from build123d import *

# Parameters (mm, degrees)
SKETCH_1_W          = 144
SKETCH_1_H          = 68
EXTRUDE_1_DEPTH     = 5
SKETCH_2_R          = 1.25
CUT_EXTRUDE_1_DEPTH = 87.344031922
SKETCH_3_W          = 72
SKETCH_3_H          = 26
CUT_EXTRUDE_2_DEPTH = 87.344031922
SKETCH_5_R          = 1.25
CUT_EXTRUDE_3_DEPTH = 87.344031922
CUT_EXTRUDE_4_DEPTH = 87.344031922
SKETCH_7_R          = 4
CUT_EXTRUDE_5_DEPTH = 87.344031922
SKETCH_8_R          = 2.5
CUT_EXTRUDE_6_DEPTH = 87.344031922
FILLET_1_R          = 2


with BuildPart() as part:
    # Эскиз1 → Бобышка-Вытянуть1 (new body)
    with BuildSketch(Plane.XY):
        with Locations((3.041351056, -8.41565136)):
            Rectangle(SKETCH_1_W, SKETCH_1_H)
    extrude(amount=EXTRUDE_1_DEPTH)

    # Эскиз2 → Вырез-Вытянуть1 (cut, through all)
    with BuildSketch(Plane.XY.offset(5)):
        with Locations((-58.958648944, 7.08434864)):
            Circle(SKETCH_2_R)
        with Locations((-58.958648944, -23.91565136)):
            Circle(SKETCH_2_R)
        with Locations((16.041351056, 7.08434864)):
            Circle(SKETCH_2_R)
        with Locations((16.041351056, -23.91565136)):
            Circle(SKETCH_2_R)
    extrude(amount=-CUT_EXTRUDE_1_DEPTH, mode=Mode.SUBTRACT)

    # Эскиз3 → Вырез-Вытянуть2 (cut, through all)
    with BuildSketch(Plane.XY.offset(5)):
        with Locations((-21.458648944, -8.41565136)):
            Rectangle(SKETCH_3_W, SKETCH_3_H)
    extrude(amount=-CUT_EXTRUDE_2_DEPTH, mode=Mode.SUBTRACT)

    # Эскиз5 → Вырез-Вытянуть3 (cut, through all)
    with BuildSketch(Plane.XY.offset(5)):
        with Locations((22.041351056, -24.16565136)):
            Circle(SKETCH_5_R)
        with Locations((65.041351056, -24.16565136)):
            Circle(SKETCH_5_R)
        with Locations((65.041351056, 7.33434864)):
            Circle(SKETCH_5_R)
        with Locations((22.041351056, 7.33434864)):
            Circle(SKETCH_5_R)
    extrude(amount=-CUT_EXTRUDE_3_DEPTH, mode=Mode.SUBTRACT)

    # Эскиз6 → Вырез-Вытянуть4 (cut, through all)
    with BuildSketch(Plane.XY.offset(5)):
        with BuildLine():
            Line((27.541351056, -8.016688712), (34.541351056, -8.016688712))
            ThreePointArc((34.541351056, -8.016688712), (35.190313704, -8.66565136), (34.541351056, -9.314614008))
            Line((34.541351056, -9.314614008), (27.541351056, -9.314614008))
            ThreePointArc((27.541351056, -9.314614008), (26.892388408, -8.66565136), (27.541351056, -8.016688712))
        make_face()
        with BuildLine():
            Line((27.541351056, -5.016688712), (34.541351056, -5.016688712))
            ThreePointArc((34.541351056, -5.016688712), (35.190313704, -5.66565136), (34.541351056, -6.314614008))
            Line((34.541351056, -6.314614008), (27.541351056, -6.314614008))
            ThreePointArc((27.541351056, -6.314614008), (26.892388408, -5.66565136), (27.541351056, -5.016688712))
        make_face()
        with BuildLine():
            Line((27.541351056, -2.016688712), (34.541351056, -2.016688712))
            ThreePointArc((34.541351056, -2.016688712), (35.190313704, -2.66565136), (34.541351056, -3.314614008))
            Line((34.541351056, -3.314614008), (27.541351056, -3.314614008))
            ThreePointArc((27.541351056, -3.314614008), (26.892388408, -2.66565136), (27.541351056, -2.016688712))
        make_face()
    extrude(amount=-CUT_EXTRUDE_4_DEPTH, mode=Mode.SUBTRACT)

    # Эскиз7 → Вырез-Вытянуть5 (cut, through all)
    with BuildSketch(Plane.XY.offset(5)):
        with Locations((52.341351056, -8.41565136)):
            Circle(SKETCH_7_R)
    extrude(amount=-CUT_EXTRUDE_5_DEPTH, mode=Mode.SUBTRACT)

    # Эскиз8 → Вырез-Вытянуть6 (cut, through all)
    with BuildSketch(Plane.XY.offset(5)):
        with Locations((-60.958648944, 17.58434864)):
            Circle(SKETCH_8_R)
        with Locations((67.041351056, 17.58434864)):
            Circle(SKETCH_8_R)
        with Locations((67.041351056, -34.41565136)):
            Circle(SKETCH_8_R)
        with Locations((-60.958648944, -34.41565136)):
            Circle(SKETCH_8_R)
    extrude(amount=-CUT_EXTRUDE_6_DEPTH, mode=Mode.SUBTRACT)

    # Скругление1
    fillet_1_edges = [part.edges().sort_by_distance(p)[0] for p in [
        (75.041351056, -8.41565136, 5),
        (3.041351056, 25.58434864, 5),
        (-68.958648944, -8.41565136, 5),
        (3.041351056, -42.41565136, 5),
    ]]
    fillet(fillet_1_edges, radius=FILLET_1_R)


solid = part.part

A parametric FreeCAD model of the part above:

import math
import FreeCAD as App
import Part
import Sketcher

V = App.Vector
Q = App.Units.Quantity


def edges_at(feature, points):
    """Names of the edges that pass closest to the given points."""
    edges = feature.Shape.Edges
    near = lambda p: min(range(len(edges)), key=lambda i: edges[i].distToShape(Part.Vertex(*p))[0])
    return sorted({f"Edge{near(p) + 1}" for p in points})

doc = App.newDocument("Part")
body = doc.addObject("PartDesign::Body", "Body")

sketch1 = doc.addObject("Sketcher::SketchObject", "Sketch")
body.addObject(sketch1)
sketch1.AttachmentSupport = (doc.XY_Plane, [""])
sketch1.MapMode = "FlatFace"
sketch1.addGeometry(Part.LineSegment(V(-68.958649, 25.584349, 0), V(-68.958649, -42.415651, 0)), False)
sketch1.addGeometry(Part.LineSegment(V(-68.958649, -42.415651, 0), V(75.041351, -42.415651, 0)), False)
sketch1.addGeometry(Part.LineSegment(V(75.041351, -42.415651, 0), V(75.041351, 25.584349, 0)), False)
sketch1.addGeometry(Part.LineSegment(V(75.041351, 25.584349, 0), V(-68.958649, 25.584349, 0)), False)
sketch1.addConstraint(Sketcher.Constraint("Coincident", 0, 2, 1, 1))
sketch1.addConstraint(Sketcher.Constraint("Coincident", 1, 2, 2, 1))
sketch1.addConstraint(Sketcher.Constraint("Coincident", 2, 2, 3, 1))
sketch1.addConstraint(Sketcher.Constraint("Coincident", 3, 2, 0, 1))
sketch1.addConstraint(Sketcher.Constraint("Vertical", 0))
sketch1.addConstraint(Sketcher.Constraint("Horizontal", 1))
sketch1.addConstraint(Sketcher.Constraint("Vertical", 2))
sketch1.addConstraint(Sketcher.Constraint("Horizontal", 3))
sketch1.addConstraint(Sketcher.Constraint("DistanceX", 1, 1, 1, 2, Q("144 mm")))
sketch1.addConstraint(Sketcher.Constraint("DistanceY", 0, 2, 0, 1, Q("68 mm")))
sketch1.addConstraint(Sketcher.Constraint("DistanceX", 0, 2, -1, 1, Q("68.958649 mm")))
sketch1.addConstraint(Sketcher.Constraint("DistanceY", 0, 2, -1, 1, Q("42.415651 mm")))
pad1 = doc.addObject("PartDesign::Pad", "Pad")
body.addObject(pad1)
pad1.Profile = sketch1
pad1.Length = 5

sketch2 = doc.addObject("Sketcher::SketchObject", "Sketch001")
body.addObject(sketch2)
sketch2.AttachmentSupport = (doc.XY_Plane, [""])
sketch2.MapMode = "FlatFace"
sketch2.AttachmentOffset = App.Placement(V(0, 0, 5), App.Rotation())
sketch2.addGeometry(Part.Circle(V(-58.958649, 7.084349, 0), V(0, 0, 1), 1.25), False)
sketch2.addGeometry(Part.Circle(V(-58.958649, -23.915651, 0), V(0, 0, 1), 1.25), False)
sketch2.addGeometry(Part.Circle(V(16.041351, 7.084349, 0), V(0, 0, 1), 1.25), False)
sketch2.addGeometry(Part.Circle(V(16.041351, -23.915651, 0), V(0, 0, 1), 1.25), False)
sketch2.addConstraint(Sketcher.Constraint("Equal", 0, 1))
sketch2.addConstraint(Sketcher.Constraint("Equal", 1, 2))
sketch2.addConstraint(Sketcher.Constraint("Equal", 2, 3))
sketch2.addConstraint(Sketcher.Constraint("Horizontal", 0, 3, 2, 3))
sketch2.addConstraint(Sketcher.Constraint("Horizontal", 1, 3, 3, 3))
sketch2.addConstraint(Sketcher.Constraint("Vertical", 0, 3, 1, 3))
sketch2.addConstraint(Sketcher.Constraint("Vertical", 2, 3, 3, 3))
sketch2.addConstraint(Sketcher.Constraint("Diameter", 0, Q("2.5 mm")))
sketch2.addConstraint(Sketcher.Constraint("DistanceY", 1, 3, 0, 3, Q("31 mm")))
sketch2.addConstraint(Sketcher.Constraint("DistanceX", 0, 3, 2, 3, Q("75 mm")))
sketch2.addConstraint(Sketcher.Constraint("DistanceX", 0, 3, -1, 1, Q("58.958649 mm")))
sketch2.addConstraint(Sketcher.Constraint("DistanceY", -1, 1, 0, 3, Q("7.084349 mm")))
pocket1 = doc.addObject("PartDesign::Pocket", "Pocket")
body.addObject(pocket1)
pocket1.Profile = sketch2
pocket1.Type = "ThroughAll"

sketch3 = doc.addObject("Sketcher::SketchObject", "Sketch002")
body.addObject(sketch3)
sketch3.AttachmentSupport = (doc.XY_Plane, [""])
sketch3.MapMode = "FlatFace"
sketch3.AttachmentOffset = App.Placement(V(0, 0, 5), App.Rotation())
sketch3.addGeometry(Part.LineSegment(V(-57.458649, 4.584349, 0), V(-57.458649, -21.415651, 0)), False)
sketch3.addGeometry(Part.LineSegment(V(-57.458649, -21.415651, 0), V(14.541351, -21.415651, 0)), False)
sketch3.addGeometry(Part.LineSegment(V(14.541351, -21.415651, 0), V(14.541351, 4.584349, 0)), False)
sketch3.addGeometry(Part.LineSegment(V(14.541351, 4.584349, 0), V(-57.458649, 4.584349, 0)), False)
sketch3.addConstraint(Sketcher.Constraint("Coincident", 0, 2, 1, 1))
sketch3.addConstraint(Sketcher.Constraint("Coincident", 1, 2, 2, 1))
sketch3.addConstraint(Sketcher.Constraint("Coincident", 2, 2, 3, 1))
sketch3.addConstraint(Sketcher.Constraint("Coincident", 3, 2, 0, 1))
sketch3.addConstraint(Sketcher.Constraint("Vertical", 0))
sketch3.addConstraint(Sketcher.Constraint("Horizontal", 1))
sketch3.addConstraint(Sketcher.Constraint("Vertical", 2))
sketch3.addConstraint(Sketcher.Constraint("Horizontal", 3))
sketch3.addConstraint(Sketcher.Constraint("DistanceX", 1, 1, 1, 2, Q("72 mm")))
sketch3.addConstraint(Sketcher.Constraint("DistanceY", 0, 2, 0, 1, Q("26 mm")))
sketch3.addConstraint(Sketcher.Constraint("DistanceX", 0, 2, -1, 1, Q("57.458649 mm")))
sketch3.addConstraint(Sketcher.Constraint("DistanceY", 0, 2, -1, 1, Q("21.415651 mm")))
pocket2 = doc.addObject("PartDesign::Pocket", "Pocket001")
body.addObject(pocket2)
pocket2.Profile = sketch3
pocket2.Type = "ThroughAll"

sketch4 = doc.addObject("Sketcher::SketchObject", "Sketch003")
body.addObject(sketch4)
sketch4.AttachmentSupport = (doc.XY_Plane, [""])
sketch4.MapMode = "FlatFace"
sketch4.AttachmentOffset = App.Placement(V(0, 0, 5), App.Rotation())
sketch4.addGeometry(Part.Circle(V(22.041351, -24.165651, 0), V(0, 0, 1), 1.25), False)
sketch4.addGeometry(Part.Circle(V(65.041351, -24.165651, 0), V(0, 0, 1), 1.25), False)
sketch4.addGeometry(Part.Circle(V(65.041351, 7.334349, 0), V(0, 0, 1), 1.25), False)
sketch4.addGeometry(Part.Circle(V(22.041351, 7.334349, 0), V(0, 0, 1), 1.25), False)
sketch4.addConstraint(Sketcher.Constraint("Equal", 0, 1))
sketch4.addConstraint(Sketcher.Constraint("Equal", 1, 2))
sketch4.addConstraint(Sketcher.Constraint("Equal", 2, 3))
sketch4.addConstraint(Sketcher.Constraint("Horizontal", 0, 3, 1, 3))
sketch4.addConstraint(Sketcher.Constraint("Horizontal", 2, 3, 3, 3))
sketch4.addConstraint(Sketcher.Constraint("Vertical", 1, 3, 2, 3))
sketch4.addConstraint(Sketcher.Constraint("Vertical", 0, 3, 3, 3))
sketch4.addConstraint(Sketcher.Constraint("Diameter", 0, Q("2.5 mm")))
sketch4.addConstraint(Sketcher.Constraint("DistanceX", 0, 3, 1, 3, Q("43 mm")))
sketch4.addConstraint(Sketcher.Constraint("DistanceY", 1, 3, 2, 3, Q("31.5 mm")))
sketch4.addConstraint(Sketcher.Constraint("DistanceX", -1, 1, 0, 3, Q("22.041351 mm")))
sketch4.addConstraint(Sketcher.Constraint("DistanceY", 0, 3, -1, 1, Q("24.165651 mm")))
pocket3 = doc.addObject("PartDesign::Pocket", "Pocket002")
body.addObject(pocket3)
pocket3.Profile = sketch4
pocket3.Type = "ThroughAll"

sketch5 = doc.addObject("Sketcher::SketchObject", "Sketch004")
body.addObject(sketch5)
sketch5.AttachmentSupport = (doc.XY_Plane, [""])
sketch5.MapMode = "FlatFace"
sketch5.AttachmentOffset = App.Placement(V(0, 0, 5), App.Rotation())
sketch5.addGeometry(Part.LineSegment(V(34.541351, -8.016689, 0), V(27.541351, -8.016689, 0)), False)
sketch5.addGeometry(Part.ArcOfCircle(Part.Circle(V(27.541351, -8.665651, 0), V(0, 0, 1), 0.648963), math.radians(90), math.radians(270)), False)
sketch5.addGeometry(Part.LineSegment(V(27.541351, -9.314614, 0), V(34.541351, -9.314614, 0)), False)
sketch5.addGeometry(Part.ArcOfCircle(Part.Circle(V(34.541351, -8.665651, 0), V(0, 0, 1), 0.648963), math.radians(-90), math.radians(90)), False)
sketch5.addGeometry(Part.LineSegment(V(34.541351, -5.016689, 0), V(27.541351, -5.016689, 0)), False)
sketch5.addGeometry(Part.ArcOfCircle(Part.Circle(V(27.541351, -5.665651, 0), V(0, 0, 1), 0.648963), math.radians(90), math.radians(270)), False)
sketch5.addGeometry(Part.LineSegment(V(27.541351, -6.314614, 0), V(34.541351, -6.314614, 0)), False)
sketch5.addGeometry(Part.ArcOfCircle(Part.Circle(V(34.541351, -5.665651, 0), V(0, 0, 1), 0.648963), math.radians(-90), math.radians(90)), False)
sketch5.addGeometry(Part.LineSegment(V(34.541351, -2.016689, 0), V(27.541351, -2.016689, 0)), False)
sketch5.addGeometry(Part.ArcOfCircle(Part.Circle(V(27.541351, -2.665651, 0), V(0, 0, 1), 0.648963), math.radians(90), math.radians(270)), False)
sketch5.addGeometry(Part.LineSegment(V(27.541351, -3.314614, 0), V(34.541351, -3.314614, 0)), False)
sketch5.addGeometry(Part.ArcOfCircle(Part.Circle(V(34.541351, -2.665651, 0), V(0, 0, 1), 0.648963), math.radians(-90), math.radians(90)), False)
sketch5.addConstraint(Sketcher.Constraint("Tangent", 0, 2, 1, 1))
sketch5.addConstraint(Sketcher.Constraint("Tangent", 1, 2, 2, 1))
sketch5.addConstraint(Sketcher.Constraint("Tangent", 2, 2, 3, 1))
sketch5.addConstraint(Sketcher.Constraint("Tangent", 3, 2, 0, 1))
sketch5.addConstraint(Sketcher.Constraint("Tangent", 4, 2, 5, 1))
sketch5.addConstraint(Sketcher.Constraint("Tangent", 5, 2, 6, 1))
sketch5.addConstraint(Sketcher.Constraint("Tangent", 6, 2, 7, 1))
sketch5.addConstraint(Sketcher.Constraint("Tangent", 7, 2, 4, 1))
sketch5.addConstraint(Sketcher.Constraint("Tangent", 8, 2, 9, 1))
sketch5.addConstraint(Sketcher.Constraint("Tangent", 9, 2, 10, 1))
sketch5.addConstraint(Sketcher.Constraint("Tangent", 10, 2, 11, 1))
sketch5.addConstraint(Sketcher.Constraint("Tangent", 11, 2, 8, 1))
sketch5.addConstraint(Sketcher.Constraint("Horizontal", 0))
sketch5.addConstraint(Sketcher.Constraint("Horizontal", 2))
sketch5.addConstraint(Sketcher.Constraint("Horizontal", 4))
sketch5.addConstraint(Sketcher.Constraint("Horizontal", 6))
sketch5.addConstraint(Sketcher.Constraint("Horizontal", 8))
sketch5.addConstraint(Sketcher.Constraint("Horizontal", 10))
sketch5.addConstraint(Sketcher.Constraint("Equal", 3, 5))
sketch5.addConstraint(Sketcher.Constraint("Equal", 7, 9))
sketch5.addConstraint(Sketcher.Constraint("Vertical", 1, 3, 5, 3))
sketch5.addConstraint(Sketcher.Constraint("Vertical", 3, 3, 7, 3))
sketch5.addConstraint(Sketcher.Constraint("Vertical", 5, 3, 9, 3))
sketch5.addConstraint(Sketcher.Constraint("Vertical", 7, 3, 11, 3))
sketch5.addConstraint(Sketcher.Constraint("DistanceX", 0, 2, 0, 1, Q("7 mm")))
sketch5.addConstraint(Sketcher.Constraint("DistanceY", 1, 3, 5, 3, Q("3 mm")))
sketch5.addConstraint(Sketcher.Constraint("DistanceY", 5, 3, 9, 3, Q("3 mm")))
sketch5.addConstraint(Sketcher.Constraint("Radius", 1, Q("0.648963 mm")))
sketch5.addConstraint(Sketcher.Constraint("DistanceX", -1, 1, 1, 3, Q("27.541351 mm")))
sketch5.addConstraint(Sketcher.Constraint("DistanceY", 1, 3, -1, 1, Q("8.665651 mm")))
pocket4 = doc.addObject("PartDesign::Pocket", "Pocket003")
body.addObject(pocket4)
pocket4.Profile = sketch5
pocket4.Type = "ThroughAll"

sketch6 = doc.addObject("Sketcher::SketchObject", "Sketch005")
body.addObject(sketch6)
sketch6.AttachmentSupport = (doc.XY_Plane, [""])
sketch6.MapMode = "FlatFace"
sketch6.AttachmentOffset = App.Placement(V(0, 0, 5), App.Rotation())
sketch6.addGeometry(Part.Circle(V(52.341351, -8.415651, 0), V(0, 0, 1), 4), False)
sketch6.addConstraint(Sketcher.Constraint("Diameter", 0, Q("8 mm")))
sketch6.addConstraint(Sketcher.Constraint("DistanceX", -1, 1, 0, 3, Q("52.341351 mm")))
sketch6.addConstraint(Sketcher.Constraint("DistanceY", 0, 3, -1, 1, Q("8.415651 mm")))
pocket5 = doc.addObject("PartDesign::Pocket", "Pocket004")
body.addObject(pocket5)
pocket5.Profile = sketch6
pocket5.Type = "ThroughAll"

sketch7 = doc.addObject("Sketcher::SketchObject", "Sketch006")
body.addObject(sketch7)
sketch7.AttachmentSupport = (doc.XY_Plane, [""])
sketch7.MapMode = "FlatFace"
sketch7.AttachmentOffset = App.Placement(V(0, 0, 5), App.Rotation())
sketch7.addGeometry(Part.Circle(V(-60.958649, 17.584349, 0), V(0, 0, 1), 2.5), False)
sketch7.addGeometry(Part.Circle(V(67.041351, 17.584349, 0), V(0, 0, 1), 2.5), False)
sketch7.addGeometry(Part.Circle(V(67.041351, -34.415651, 0), V(0, 0, 1), 2.5), False)
sketch7.addGeometry(Part.Circle(V(-60.958649, -34.415651, 0), V(0, 0, 1), 2.5), False)
sketch7.addConstraint(Sketcher.Constraint("Equal", 0, 1))
sketch7.addConstraint(Sketcher.Constraint("Equal", 1, 2))
sketch7.addConstraint(Sketcher.Constraint("Equal", 2, 3))
sketch7.addConstraint(Sketcher.Constraint("Horizontal", 0, 3, 1, 3))
sketch7.addConstraint(Sketcher.Constraint("Horizontal", 2, 3, 3, 3))
sketch7.addConstraint(Sketcher.Constraint("Vertical", 1, 3, 2, 3))
sketch7.addConstraint(Sketcher.Constraint("Vertical", 0, 3, 3, 3))
sketch7.addConstraint(Sketcher.Constraint("Diameter", 0, Q("5 mm")))
sketch7.addConstraint(Sketcher.Constraint("DistanceX", 0, 3, 1, 3, Q("128 mm")))
sketch7.addConstraint(Sketcher.Constraint("DistanceY", 2, 3, 1, 3, Q("52 mm")))
sketch7.addConstraint(Sketcher.Constraint("DistanceX", 0, 3, -1, 1, Q("60.958649 mm")))
sketch7.addConstraint(Sketcher.Constraint("DistanceY", -1, 1, 0, 3, Q("17.584349 mm")))
pocket6 = doc.addObject("PartDesign::Pocket", "Pocket005")
body.addObject(pocket6)
pocket6.Profile = sketch7
pocket6.Type = "ThroughAll"
doc.recompute()

fillet = doc.addObject("PartDesign::Fillet", "Fillet")
body.addObject(fillet)
fillet.Base = (pocket6, edges_at(pocket6, [
    (75.041, -8.416, 5),
    (3.041, 25.584, 5),
    (-68.959, -8.416, 5),
    (3.041, -42.416, 5),
]))
fillet.Radius = 2

doc.recompute()
